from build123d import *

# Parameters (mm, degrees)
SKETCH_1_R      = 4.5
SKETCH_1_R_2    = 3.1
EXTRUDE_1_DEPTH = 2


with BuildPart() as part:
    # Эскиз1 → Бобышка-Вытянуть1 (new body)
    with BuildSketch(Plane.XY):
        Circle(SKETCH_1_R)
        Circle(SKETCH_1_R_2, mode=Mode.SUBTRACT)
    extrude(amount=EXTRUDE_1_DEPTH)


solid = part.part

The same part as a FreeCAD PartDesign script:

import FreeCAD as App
import Part
import Sketcher
Q = App.Units.Quantity

doc = App.newDocument("Part")
body = doc.addObject("PartDesign::Body", "Body")

# Sketch on XY plane
sketch1 = doc.addObject("Sketcher::SketchObject", "Sketch")
body.addObject(sketch1)
sketch1.AttachmentSupport = (doc.XY_Plane, [""])
sketch1.MapMode = "FlatFace"
sketch1.addGeometry(Part.Circle(App.Vector(0, 0, 0), App.Vector(0, 0, 1), 4.5), False)
sketch1.addGeometry(Part.Circle(App.Vector(0, 0, 0), App.Vector(0, 0, 1), 3.1), False)
sketch1.addConstraint(Sketcher.Constraint("Coincident", 0, 3, -1, 1))
sketch1.addConstraint(Sketcher.Constraint("Coincident", 1, 3, -1, 1))
sketch1.addConstraint(Sketcher.Constraint("Diameter", 0, Q("9 mm")))
sketch1.addConstraint(Sketcher.Constraint("Diameter", 1, Q("6.2 mm")))
pad1 = doc.addObject("PartDesign::Pad", "Pad")
body.addObject(pad1)
pad1.Profile = sketch1
pad1.Length = 2

doc.recompute()
